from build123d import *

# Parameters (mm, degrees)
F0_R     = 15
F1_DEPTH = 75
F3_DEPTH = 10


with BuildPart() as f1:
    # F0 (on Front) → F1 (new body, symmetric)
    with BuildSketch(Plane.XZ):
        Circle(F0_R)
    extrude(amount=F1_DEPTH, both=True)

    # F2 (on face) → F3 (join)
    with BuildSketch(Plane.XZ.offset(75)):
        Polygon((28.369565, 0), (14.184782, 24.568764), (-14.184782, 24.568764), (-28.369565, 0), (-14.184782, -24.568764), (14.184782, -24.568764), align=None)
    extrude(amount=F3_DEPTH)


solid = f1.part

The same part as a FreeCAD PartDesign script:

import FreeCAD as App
import Part
import Sketcher
Q = App.Units.Quantity


def add_polygon(sketch, points):
    """Adds a closed chain of lines whose ends are joined by coincident constraints."""
    first, n = sketch.GeometryCount, len(points)
    for a, b in zip(points, points[1:] + points[:1]):
        sketch.addGeometry(Part.LineSegment(App.Vector(*a, 0), App.Vector(*b, 0)), False)
    for i in range(n):
        sketch.addConstraint(Sketcher.Constraint("Coincident", first + i, 2, first + (i + 1) % n, 1))

doc = App.newDocument("Part")
body = doc.addObject("PartDesign::Body", "Body")

# Sketch on XZ plane
sketch1 = doc.addObject("Sketcher::SketchObject", "Sketch")
body.addObject(sketch1)
sketch1.AttachmentSupport = (doc.XZ_Plane, [""])
sketch1.MapMode = "FlatFace"
sketch1.addGeometry(Part.Circle(App.Vector(0, 0, 0), App.Vector(0, 0, 1), 15), False)
sketch1.addConstraint(Sketcher.Constraint("Coincident", 0, 3, -1, 1))
sketch1.addConstraint(Sketcher.Constraint("Diameter", 0, Q("30 mm")))
pad1 = doc.addObject("PartDesign::Pad", "Pad")
body.addObject(pad1)
pad1.Profile = sketch1
pad1.Length = 150
pad1.Midplane = True

# Sketch on XZ plane
sketch2 = doc.addObject("Sketcher::SketchObject", "Sketch001")
body.addObject(sketch2)
sketch2.AttachmentSupport = (doc.XZ_Plane, [""])
sketch2.MapMode = "FlatFace"
sketch2.AttachmentOffset = App.Placement(App.Vector(0, 0, 75), App.Rotation())
add_polygon(sketch2, [(28, 0), (14, 25), (-14, 25), (-28, 0), (-14, -25), (14, -25)])  # lines 0-5
sketch2.addConstraint(Sketcher.Constraint("Horizontal", 1))
sketch2.addConstraint(Sketcher.Constraint("Horizontal", 4))
sketch2.addConstraint(Sketcher.Constraint("Symmetric", 0, 2, 3, 2, -1, 1))
sketch2.addConstraint(Sketcher.Constraint("Symmetric", 2, 2, 5, 2, -1, 1))
sketch2.addConstraint(Sketcher.Constraint("PointOnObject", 2, 2, -1))
sketch2.addConstraint(Sketcher.Constraint("Parallel", 2, 5))
sketch2.addConstraint(Sketcher.Constraint("Vertical", 1, 2, 3, 2))
sketch2.addConstraint(Sketcher.Constraint("Angle", 0, Q("120.000001 deg")))
sketch2.addConstraint(Sketcher.Constraint("DistanceX", 1, 2, 1, 1, Q("28.369564 mm")))
sketch2.addConstraint(Sketcher.Constraint("DistanceY", 3, 2, 1, 2, Q("49.137528 mm")))
pad2 = doc.addObject("PartDesign::Pad", "Pad001")
body.addObject(pad2)
pad2.Profile = sketch2
pad2.Length = 10

doc.recompute()
